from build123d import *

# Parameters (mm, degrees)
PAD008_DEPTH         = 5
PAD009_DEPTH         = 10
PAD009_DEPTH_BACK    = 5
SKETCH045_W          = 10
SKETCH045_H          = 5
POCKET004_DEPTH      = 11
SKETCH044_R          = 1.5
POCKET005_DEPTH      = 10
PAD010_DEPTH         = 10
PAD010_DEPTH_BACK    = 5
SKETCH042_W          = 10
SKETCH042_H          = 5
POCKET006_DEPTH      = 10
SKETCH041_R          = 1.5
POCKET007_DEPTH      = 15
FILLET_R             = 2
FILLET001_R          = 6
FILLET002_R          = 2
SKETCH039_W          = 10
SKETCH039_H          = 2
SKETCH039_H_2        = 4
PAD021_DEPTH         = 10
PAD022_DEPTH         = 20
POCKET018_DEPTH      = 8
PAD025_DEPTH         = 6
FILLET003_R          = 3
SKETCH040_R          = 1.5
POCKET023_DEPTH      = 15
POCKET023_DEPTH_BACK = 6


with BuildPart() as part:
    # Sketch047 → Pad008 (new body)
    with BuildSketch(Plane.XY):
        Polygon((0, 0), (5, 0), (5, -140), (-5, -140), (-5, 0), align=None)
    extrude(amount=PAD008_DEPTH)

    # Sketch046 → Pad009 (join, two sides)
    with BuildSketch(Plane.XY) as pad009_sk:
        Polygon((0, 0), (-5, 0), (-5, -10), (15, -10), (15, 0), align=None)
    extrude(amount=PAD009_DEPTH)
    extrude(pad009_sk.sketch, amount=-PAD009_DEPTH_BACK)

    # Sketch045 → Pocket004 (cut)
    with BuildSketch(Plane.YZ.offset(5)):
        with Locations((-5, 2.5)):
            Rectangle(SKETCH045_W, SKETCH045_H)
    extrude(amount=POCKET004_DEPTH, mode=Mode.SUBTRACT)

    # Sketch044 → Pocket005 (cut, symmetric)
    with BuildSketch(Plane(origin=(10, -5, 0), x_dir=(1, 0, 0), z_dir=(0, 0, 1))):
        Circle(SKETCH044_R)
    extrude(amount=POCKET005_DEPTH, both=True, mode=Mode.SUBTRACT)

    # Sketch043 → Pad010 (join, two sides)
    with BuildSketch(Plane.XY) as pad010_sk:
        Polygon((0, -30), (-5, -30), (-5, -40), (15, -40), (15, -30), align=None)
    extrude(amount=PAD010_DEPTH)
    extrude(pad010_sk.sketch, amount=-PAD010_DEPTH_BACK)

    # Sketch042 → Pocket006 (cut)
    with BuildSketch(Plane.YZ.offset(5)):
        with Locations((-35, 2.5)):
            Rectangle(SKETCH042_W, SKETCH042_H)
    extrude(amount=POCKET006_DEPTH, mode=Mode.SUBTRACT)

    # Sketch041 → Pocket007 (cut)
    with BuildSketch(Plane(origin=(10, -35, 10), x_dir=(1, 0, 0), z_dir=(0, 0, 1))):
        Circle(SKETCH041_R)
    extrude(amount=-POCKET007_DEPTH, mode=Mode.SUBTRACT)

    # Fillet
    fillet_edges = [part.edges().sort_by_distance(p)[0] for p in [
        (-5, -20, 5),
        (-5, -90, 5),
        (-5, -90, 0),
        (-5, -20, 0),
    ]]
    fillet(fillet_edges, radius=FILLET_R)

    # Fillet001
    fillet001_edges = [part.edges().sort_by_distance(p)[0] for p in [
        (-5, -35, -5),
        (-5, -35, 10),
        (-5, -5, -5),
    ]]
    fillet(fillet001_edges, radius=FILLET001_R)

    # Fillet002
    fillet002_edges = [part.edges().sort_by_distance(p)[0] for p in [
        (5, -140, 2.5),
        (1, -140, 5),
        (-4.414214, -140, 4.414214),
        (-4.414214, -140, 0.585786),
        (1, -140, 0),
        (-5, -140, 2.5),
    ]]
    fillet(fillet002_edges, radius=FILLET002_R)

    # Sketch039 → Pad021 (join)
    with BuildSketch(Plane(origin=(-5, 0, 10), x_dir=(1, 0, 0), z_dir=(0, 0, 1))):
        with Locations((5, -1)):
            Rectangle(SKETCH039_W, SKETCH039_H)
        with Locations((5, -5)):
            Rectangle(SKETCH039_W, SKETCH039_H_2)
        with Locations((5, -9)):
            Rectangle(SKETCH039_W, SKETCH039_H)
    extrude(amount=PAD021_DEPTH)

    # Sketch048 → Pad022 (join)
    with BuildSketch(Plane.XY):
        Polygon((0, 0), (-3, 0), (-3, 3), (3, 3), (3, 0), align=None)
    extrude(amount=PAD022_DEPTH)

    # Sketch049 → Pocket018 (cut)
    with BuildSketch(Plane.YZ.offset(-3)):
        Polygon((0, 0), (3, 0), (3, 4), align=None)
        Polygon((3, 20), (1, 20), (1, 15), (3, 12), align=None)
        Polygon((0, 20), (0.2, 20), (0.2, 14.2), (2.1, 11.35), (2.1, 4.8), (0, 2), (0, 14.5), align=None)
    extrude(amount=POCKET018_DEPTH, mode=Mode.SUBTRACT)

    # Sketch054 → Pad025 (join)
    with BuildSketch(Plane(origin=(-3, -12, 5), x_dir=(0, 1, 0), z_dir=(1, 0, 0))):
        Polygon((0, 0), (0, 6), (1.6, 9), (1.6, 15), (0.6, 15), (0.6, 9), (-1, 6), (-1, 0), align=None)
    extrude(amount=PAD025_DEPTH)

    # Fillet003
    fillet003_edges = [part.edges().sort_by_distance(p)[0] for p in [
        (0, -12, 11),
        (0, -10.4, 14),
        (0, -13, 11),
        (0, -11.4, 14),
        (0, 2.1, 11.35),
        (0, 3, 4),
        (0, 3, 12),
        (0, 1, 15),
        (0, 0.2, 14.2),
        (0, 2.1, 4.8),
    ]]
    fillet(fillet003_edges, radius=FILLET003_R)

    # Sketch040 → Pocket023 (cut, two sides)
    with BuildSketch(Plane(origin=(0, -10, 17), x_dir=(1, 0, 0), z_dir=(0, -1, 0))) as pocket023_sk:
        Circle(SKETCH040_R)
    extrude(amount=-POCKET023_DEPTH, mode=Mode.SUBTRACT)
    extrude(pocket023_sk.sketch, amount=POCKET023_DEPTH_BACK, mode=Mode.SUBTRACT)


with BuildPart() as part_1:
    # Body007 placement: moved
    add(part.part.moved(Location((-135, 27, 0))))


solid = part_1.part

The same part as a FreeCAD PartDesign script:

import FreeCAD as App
import Part
import Sketcher

V = App.Vector


def edges_at(feature, points):
    """Names of the edges that pass closest to the given points."""
    edges = feature.Shape.Edges
    near = lambda p: min(range(len(edges)), key=lambda i: edges[i].distToShape(Part.Vertex(*p))[0])
    return sorted({f"Edge{near(p) + 1}" for p in points})


def add_polygon(sketch, points):
    """Adds a closed chain of lines whose ends are joined by coincident constraints."""
    first, n = sketch.GeometryCount, len(points)
    for a, b in zip(points, points[1:] + points[:1]):
        sketch.addGeometry(Part.LineSegment(App.Vector(*a, 0), App.Vector(*b, 0)), False)
    for i in range(n):
        sketch.addConstraint(Sketcher.Constraint("Coincident", first + i, 2, first + (i + 1) % n, 1))

doc = App.newDocument("Part")
body = doc.addObject("PartDesign::Body", "Body")

sketch1 = body.newObject("Sketcher::SketchObject", "Sketch")
sketch1.AttachmentSupport = (doc.getObject("XY_Plane"), [""])
sketch1.MapMode = "FlatFace"
add_polygon(sketch1, [(5, 0), (-5, 0), (-5, -140), (5, -140)])
sketch1.addConstraint([
    Sketcher.Constraint("Horizontal", 0),
    Sketcher.Constraint("Vertical", 1),
    Sketcher.Constraint("Horizontal", 2),
    Sketcher.Constraint("Vertical", 3),
    Sketcher.Constraint("Symmetric", 0, 2, 3, 2, -1, 1),
    Sketcher.Constraint("DistanceX", 0, 2, 0, 1, 10.0),
    Sketcher.Constraint("DistanceY", 1, 2, 1, 1, 140.0),
])
pad1 = body.newObject("PartDesign::Pad", "Pad")
pad1.Profile = sketch1
pad1.Length = 5

sketch2 = body.newObject("Sketcher::SketchObject", "Sketch001")
sketch2.AttachmentSupport = (doc.getObject("XY_Plane"), [""])
sketch2.MapMode = "FlatFace"
add_polygon(sketch2, [(-5, 0), (-5, -10), (15, -10), (15, 0)])
sketch2.addConstraint([
    Sketcher.Constraint("Vertical", 0),
    Sketcher.Constraint("Horizontal", 1),
    Sketcher.Constraint("Vertical", 2),
    Sketcher.Constraint("Horizontal", 3),
    Sketcher.Constraint("PointOnObject", 2, 2, -1),
    Sketcher.Constraint("DistanceX", 1, 1, 1, 2, 20.0),
    Sketcher.Constraint("DistanceY", 0, 2, 0, 1, 10.0),
    Sketcher.Constraint("DistanceX", 0, 2, -1, 1, 5.0),
])
pad2 = body.newObject("PartDesign::Pad", "Pad001")
pad2.Profile = sketch2
pad2.Type = "TwoLengths"
pad2.Length = 10
pad2.Length2 = 5

sketch3 = body.newObject("Sketcher::SketchObject", "Sketch002")
sketch3.AttachmentSupport = (doc.getObject("YZ_Plane"), [""])
sketch3.MapMode = "FlatFace"
sketch3.AttachmentOffset = App.Placement(V(0, 0, 5), App.Rotation())
add_polygon(sketch3, [(-10, 5), (-10, 0), (0, 0), (0, 5)])
sketch3.addConstraint([
    Sketcher.Constraint("Vertical", 0),
    Sketcher.Constraint("Horizontal", 1),
    Sketcher.Constraint("Vertical", 2),
    Sketcher.Constraint("Horizontal", 3),
    Sketcher.Constraint("Coincident", 1, 2, -1, 1),
    Sketcher.Constraint("DistanceX", 1, 1, 1, 2, 10.0),
    Sketcher.Constraint("DistanceY", 0, 2, 0, 1, 5.0),
])
pocket1 = body.newObject("PartDesign::Pocket", "Pocket")
pocket1.Profile = sketch3
pocket1.Length = 11
pocket1.Reversed = True

sketch4 = body.newObject("Sketcher::SketchObject", "Sketch003")
sketch4.AttachmentSupport = (doc.getObject("XY_Plane"), [""])
sketch4.MapMode = "FlatFace"
sketch4.addGeometry(Part.Circle(V(10, -5, 0), V(0, 0, 1), 1.5), False)
sketch4.addConstraint([
    Sketcher.Constraint("Diameter", 0, 3.0),
    Sketcher.Constraint("DistanceX", -1, 1, 0, 3, 10.0),
    Sketcher.Constraint("DistanceY", 0, 3, -1, 1, 5.0),
])
pocket2 = body.newObject("PartDesign::Pocket", "Pocket001")
pocket2.Profile = sketch4
pocket2.Length = 20
pocket2.Midplane = True

sketch5 = body.newObject("Sketcher::SketchObject", "Sketch004")
sketch5.AttachmentSupport = (doc.getObject("XY_Plane"), [""])
sketch5.MapMode = "FlatFace"
add_polygon(sketch5, [(-5, -30), (-5, -40), (15, -40), (15, -30)])
sketch5.addConstraint([
    Sketcher.Constraint("Vertical", 0),
    Sketcher.Constraint("Horizontal", 1),
    Sketcher.Constraint("Vertical", 2),
    Sketcher.Constraint("Horizontal", 3),
    Sketcher.Constraint("DistanceX", 1, 1, 1, 2, 20.0),
    Sketcher.Constraint("DistanceY", 0, 2, 0, 1, 10.0),
    Sketcher.Constraint("DistanceX", 0, 2, -1, 1, 5.0),
    Sketcher.Constraint("DistanceY", 0, 2, -1, 1, 40.0),
])
pad3 = body.newObject("PartDesign::Pad", "Pad002")
pad3.Profile = sketch5
pad3.Type = "TwoLengths"
pad3.Length = 10
pad3.Length2 = 5

sketch6 = body.newObject("Sketcher::SketchObject", "Sketch005")
sketch6.AttachmentSupport = (doc.getObject("YZ_Plane"), [""])
sketch6.MapMode = "FlatFace"
sketch6.AttachmentOffset = App.Placement(V(0, 0, 5), App.Rotation())
add_polygon(sketch6, [(-40, 5), (-40, 0), (-30, 0), (-30, 5)])
sketch6.addConstraint([
    Sketcher.Constraint("Vertical", 0),
    Sketcher.Constraint("Horizontal", 1),
    Sketcher.Constraint("Vertical", 2),
    Sketcher.Constraint("Horizontal", 3),
    Sketcher.Constraint("PointOnObject", 0, 2, -1),
    Sketcher.Constraint("DistanceX", 1, 1, 1, 2, 10.0),
    Sketcher.Constraint("DistanceY", 0, 2, 0, 1, 5.0),
    Sketcher.Constraint("DistanceX", 0, 2, -1, 1, 40.0),
])
pocket3 = body.newObject("PartDesign::Pocket", "Pocket002")
pocket3.Profile = sketch6
pocket3.Length = 10
pocket3.Reversed = True

sketch7 = body.newObject("Sketcher::SketchObject", "Sketch006")
sketch7.AttachmentSupport = (doc.getObject("XY_Plane"), [""])
sketch7.MapMode = "FlatFace"
sketch7.AttachmentOffset = App.Placement(V(0, 0, 10), App.Rotation())
sketch7.addGeometry(Part.Circle(V(10, -35, 0), V(0, 0, 1), 1.5), False)
sketch7.addConstraint([
    Sketcher.Constraint("Diameter", 0, 3.0),
    Sketcher.Constraint("DistanceX", -1, 1, 0, 3, 10.0),
    Sketcher.Constraint("DistanceY", 0, 3, -1, 1, 35.0),
])
pocket4 = body.newObject("PartDesign::Pocket", "Pocket003")
pocket4.Profile = sketch7
pocket4.Length = 15
doc.recompute()

fillet = body.newObject("PartDesign::Fillet", "Fillet")
fillet.Base = (pocket4, edges_at(pocket4, [
    (-5, -20, 5),
    (-5, -90, 5),
    (-5, -90, 0),
    (-5, -20, 0),
]))
fillet.Radius = 2
doc.recompute()

fillet2 = body.newObject("PartDesign::Fillet", "Fillet001")
fillet2.Base = (fillet, edges_at(fillet, [(-5, -35, -5), (-5, -35, 10), (-5, -5, -5)]))
fillet2.Radius = 6
doc.recompute()

fillet3 = body.newObject("PartDesign::Fillet", "Fillet002")
fillet3.Base = (fillet2, edges_at(fillet2, [
    (5, -140, 2.5),
    (1, -140, 5),
    (-4.414, -140, 4.414),
    (-4.414, -140, 0.586),
    (1, -140, 0),
    (-5, -140, 2.5),
]))
fillet3.Radius = 2

sketch8 = body.newObject("Sketcher::SketchObject", "Sketch007")
sketch8.AttachmentSupport = (doc.getObject("XY_Plane"), [""])
sketch8.MapMode = "FlatFace"
sketch8.AttachmentOffset = App.Placement(V(0, 0, 10), App.Rotation())
add_polygon(sketch8, [(-5, 0), (-5, -2), (5, -2), (5, 0)])
add_polygon(sketch8, [(-5, -3), (-5, -7), (5, -7), (5, -3)])
add_polygon(sketch8, [(-5, -8), (-5, -10), (5, -10), (5, -8)])
sketch8.addConstraint([
    Sketcher.Constraint("Vertical", 0),
    Sketcher.Constraint("Horizontal", 1),
    Sketcher.Constraint("Vertical", 2),
    Sketcher.Constraint("Horizontal", 3),
    Sketcher.Constraint("Vertical", 4),
    Sketcher.Constraint("Horizontal", 5),
    Sketcher.Constraint("Vertical", 6),
    Sketcher.Constraint("Horizontal", 7),
    Sketcher.Constraint("Vertical", 8),
    Sketcher.Constraint("Horizontal", 9),
    Sketcher.Constraint("Vertical", 10),
    Sketcher.Constraint("Horizontal", 11),
    Sketcher.Constraint("Symmetric", 2, 2, 3, 2, -1, 1),
    Sketcher.Constraint("Vertical", 3, 2, 4, 2),
    Sketcher.Constraint("Vertical", 2, 2, 5, 2),
    Sketcher.Constraint("Vertical", 7, 2, 8, 2),
    Sketcher.Constraint("Vertical", 6, 2, 9, 2),
    Sketcher.Constraint("Equal", 2, 8),
    Sketcher.Constraint("DistanceX", 1, 1, 1, 2, 10.0),
    Sketcher.Constraint("DistanceY", 0, 2, 0, 1, 2.0),
    Sketcher.Constraint("DistanceY", 4, 2, 4, 1, 4.0),
    Sketcher.Constraint("DistanceY", 4, 2, -1, 1, 7.0),
    Sketcher.Constraint("DistanceY", 8, 2, -1, 1, 10.0),
])
pad4 = body.newObject("PartDesign::Pad", "Pad003")
pad4.Profile = sketch8
pad4.Length = 10

sketch9 = body.newObject("Sketcher::SketchObject", "Sketch008")
sketch9.AttachmentSupport = (doc.getObject("XY_Plane"), [""])
sketch9.MapMode = "FlatFace"
add_polygon(sketch9, [(-3, 0), (3, 0), (3, 3), (-3, 3)])
sketch9.addConstraint([
    Sketcher.Constraint("Horizontal", 0),
    Sketcher.Constraint("Vertical", 1),
    Sketcher.Constraint("Horizontal", 2),
    Sketcher.Constraint("Vertical", 3),
    Sketcher.Constraint("Symmetric", 0, 2, 3, 2, -1, 1),
    Sketcher.Constraint("DistanceX", 0, 1, 0, 2, 6.0),
    Sketcher.Constraint("DistanceY", 1, 1, 1, 2, 3.0),
])
pad5 = body.newObject("PartDesign::Pad", "Pad004")
pad5.Profile = sketch9
pad5.Length = 20

sketch10 = body.newObject("Sketcher::SketchObject", "Sketch009")
sketch10.AttachmentSupport = (doc.getObject("YZ_Plane"), [""])
sketch10.MapMode = "FlatFace"
sketch10.AttachmentOffset = App.Placement(V(0, 0, -3), App.Rotation())
add_polygon(sketch10, [(0, 0), (3, 0), (3, 4)])
add_polygon(sketch10, [(3, 20), (1, 20), (1, 15), (3, 12)])
add_polygon(sketch10, [(0.2, 20), (0, 20), (0, 2), (2.1, 4.8), (2.1, 11.35), (0.2, 14.2)])
sketch10.addConstraint([
    Sketcher.Constraint("Horizontal", 0),
    Sketcher.Constraint("Vertical", 1),
    Sketcher.Constraint("Horizontal", 3),
    Sketcher.Constraint("Vertical", 4),
    Sketcher.Constraint("Vertical", 6),
    Sketcher.Constraint("Horizontal", 7),
    Sketcher.Constraint("Vertical", 8),
    Sketcher.Constraint("Vertical", 10),
    Sketcher.Constraint("Vertical", 12),
    Sketcher.Constraint("Coincident", 2, 2, -1, 1),
    Sketcher.Constraint("PointOnObject", 7, 2, -2),
    Sketcher.Constraint("Parallel", 2, 9),
    Sketcher.Constraint("Parallel", 5, 11),
    Sketcher.Constraint("Horizontal", 6, 2, 7, 2),
    Sketcher.Constraint("Vertical", 1, 2, 5, 2),
    Sketcher.Constraint("DistanceX", 0, 1, 0, 2, 3.0),
    Sketcher.Constraint("DistanceX", 3, 2, 3, 1, 2.0),
    Sketcher.Constraint("DistanceY", 1, 1, 1, 2, 4.0),
    Sketcher.Constraint("DistanceY", 4, 2, 4, 1, 5.0),
    Sketcher.Constraint("DistanceY", 6, 1, 6, 2, 8.0),
    Sketcher.Constraint("DistanceY", 8, 2, 8, 1, 18.0),
    Sketcher.Constraint("DistanceX", 7, 2, 7, 1, 0.2),
    Sketcher.Constraint("DistanceY", 12, 1, 12, 2, 5.8),
    Sketcher.Constraint("DistanceY", -1, 1, 3, 2, 20.0),
    Sketcher.Constraint("Distance", 9, 3.5),
])
pocket5 = body.newObject("PartDesign::Pocket", "Pocket004")
pocket5.Profile = sketch10
pocket5.Length = 8
pocket5.Reversed = True

sketch11 = body.newObject("Sketcher::SketchObject", "Sketch010")
sketch11.AttachmentSupport = (doc.getObject("YZ_Plane"), [""])
sketch11.MapMode = "FlatFace"
sketch11.AttachmentOffset = App.Placement(V(0, 0, -3), App.Rotation())
add_polygon(sketch11, [(-12, 5), (-12, 11), (-10.4, 14), (-10.4, 20), (-11.4, 20), (-11.4, 14), (-13, 11), (-13, 5)])
sketch11.addConstraint([
    Sketcher.Constraint("Vertical", 0),
    Sketcher.Constraint("Vertical", 2),
    Sketcher.Constraint("Horizontal", 3),
    Sketcher.Constraint("Vertical", 4),
    Sketcher.Constraint("Vertical", 6),
    Sketcher.Constraint("Horizontal", 7),
    Sketcher.Constraint("Parallel", 1, 5),
    Sketcher.Constraint("Horizontal", 1, 2, 4, 2),
    Sketcher.Constraint("Horizontal", 0, 2, 5, 2),
    Sketcher.Constraint("Equal", 0, 2),
    Sketcher.Constraint("DistanceX", 3, 2, 3, 1, 1.0),
    Sketcher.Constraint("DistanceY", 0, 1, 0, 2, 6.0),
    Sketcher.Constraint("DistanceX", 0, 2, -1, 1, 12.0),
    Sketcher.Constraint("DistanceY", -1, 1, 0, 2, 11.0),
    Sketcher.Constraint("DistanceY", -1, 1, 1, 2, 14.0),
    Sketcher.Constraint("Distance", 1, 3.4),
])
pad6 = body.newObject("PartDesign::Pad", "Pad005")
pad6.Profile = sketch11
pad6.Length = 6
doc.recompute()

fillet4 = body.newObject("PartDesign::Fillet", "Fillet003")
fillet4.Base = (pad6, edges_at(pad6, [
    (0, -12, 11),
    (0, -10.4, 14),
    (0, -13, 11),
    (0, -11.4, 14),
    (0, 2.1, 11.35),
    (0, 3, 4),
    (0, 3, 12),
    (0, 1, 15),
    (0, 0.2, 14.2),
    (0, 2.1, 4.8),
]))
fillet4.Radius = 3

sketch12 = body.newObject("Sketcher::SketchObject", "Sketch011")
sketch12.AttachmentSupport = (doc.getObject("XZ_Plane"), [""])
sketch12.MapMode = "FlatFace"
sketch12.AttachmentOffset = App.Placement(V(0, 0, 10), App.Rotation())
sketch12.addGeometry(Part.Circle(V(0, 17, 0), V(0, 0, 1), 1.5), False)
sketch12.addConstraint([
    Sketcher.Constraint("PointOnObject", 0, 3, -2),
    Sketcher.Constraint("Diameter", 0, 3.0),
    Sketcher.Constraint("DistanceY", -1, 1, 0, 3, 17.0),
])
pocket6 = body.newObject("PartDesign::Pocket", "Pocket005")
pocket6.Profile = sketch12
pocket6.Type = "ThroughAll"
pocket6.Midplane = True
body2 = doc.addObject("PartDesign::Body", "Body001")
doc.recompute()

body.Placement = App.Placement(V(-135, 27, 0), App.Rotation(V(0, 0, 1), 0))
boolean = body2.newObject("PartDesign::Boolean", "Boolean")
boolean.Type = "Fuse"
boolean.addObjects([body])

doc.recompute()
